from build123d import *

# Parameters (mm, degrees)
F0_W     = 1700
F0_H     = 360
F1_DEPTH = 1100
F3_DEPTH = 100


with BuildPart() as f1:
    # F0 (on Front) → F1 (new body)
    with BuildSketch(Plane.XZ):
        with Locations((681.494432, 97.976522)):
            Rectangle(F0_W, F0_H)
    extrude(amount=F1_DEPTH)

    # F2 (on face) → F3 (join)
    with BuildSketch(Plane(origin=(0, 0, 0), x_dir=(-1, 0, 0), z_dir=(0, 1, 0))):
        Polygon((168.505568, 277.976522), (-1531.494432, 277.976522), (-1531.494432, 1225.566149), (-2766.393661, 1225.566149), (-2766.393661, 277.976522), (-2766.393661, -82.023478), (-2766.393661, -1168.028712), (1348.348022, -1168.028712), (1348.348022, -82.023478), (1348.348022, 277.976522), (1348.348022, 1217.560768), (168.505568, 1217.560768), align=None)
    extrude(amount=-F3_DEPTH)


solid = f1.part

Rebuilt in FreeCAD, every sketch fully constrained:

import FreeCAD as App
import Part
import Sketcher
from FreeCAD import Vector
Q = App.Units.Quantity

doc = App.newDocument("Part")
body = doc.addObject("PartDesign::Body", "Body")

# Sketch on XZ plane
sketch1 = doc.addObject("Sketcher::SketchObject", "Sketch")
body.addObject(sketch1)
sketch1.AttachmentSupport = (doc.XZ_Plane, [""])
sketch1.MapMode = "FlatFace"
sketch1.addGeometry([
    Part.LineSegment(Vector(-169, 278, 0), Vector(-169, -82, 0)),
    Part.LineSegment(Vector(-169, -82, 0), Vector(1531, -82, 0)),
    Part.LineSegment(Vector(1531, -82, 0), Vector(1531, 278, 0)),
    Part.LineSegment(Vector(1531, 278, 0), Vector(-169, 278, 0)),
], False)
sketch1.addConstraint([
    Sketcher.Constraint("Coincident", 0, 2, 1, 1),
    Sketcher.Constraint("Coincident", 1, 2, 2, 1),
    Sketcher.Constraint("Coincident", 2, 2, 3, 1),
    Sketcher.Constraint("Coincident", 3, 2, 0, 1),
    Sketcher.Constraint("Vertical", 0),
    Sketcher.Constraint("Horizontal", 1),
    Sketcher.Constraint("Vertical", 2),
    Sketcher.Constraint("Horizontal", 3),
    Sketcher.Constraint("DistanceX", 1, 1, 1, 2, Q("1700 mm")),
    Sketcher.Constraint("DistanceY", 0, 2, 0, 1, Q("360 mm")),
    Sketcher.Constraint("DistanceX", 0, 2, -1, 1, Q("168.505568 mm")),
    Sketcher.Constraint("DistanceY", -1, 1, 2, 2, Q("277.976522 mm")),
])
pad1 = doc.addObject("PartDesign::Pad", "Pad")
body.addObject(pad1)
pad1.Profile = sketch1
pad1.Length = 1100

# Sketch on XZ plane
sketch2 = doc.addObject("Sketcher::SketchObject", "Sketch001")
body.addObject(sketch2)
sketch2.AttachmentSupport = (doc.XZ_Plane, [""])
sketch2.MapMode = "FlatFace"
sketch2.addGeometry([
    Part.LineSegment(Vector(-169, 278, 0), Vector(1531, 278, 0)),  # 0
    Part.LineSegment(Vector(1531, 278, 0), Vector(1531, 1226, 0)),  # 1
    Part.LineSegment(Vector(1531, 1226, 0), Vector(2766, 1226, 0)),  # 2
    Part.LineSegment(Vector(2766, 1226, 0), Vector(2766, -1168, 0)),  # 3
    Part.LineSegment(Vector(2766, -1168, 0), Vector(-1348, -1168, 0)),  # 4
    Part.LineSegment(Vector(-1348, -1168, 0), Vector(-1348, 1218, 0)),  # 5
    Part.LineSegment(Vector(-1348, 1218, 0), Vector(-169, 1218, 0)),  # 6
    Part.LineSegment(Vector(-169, 1218, 0), Vector(-169, 278, 0)),  # 7
], False)
sketch2.addConstraint([
    Sketcher.Constraint("Coincident", 0, 2, 1, 1),
    Sketcher.Constraint("Coincident", 1, 2, 2, 1),
    Sketcher.Constraint("Coincident", 2, 2, 3, 1),
    Sketcher.Constraint("Coincident", 3, 2, 4, 1),
    Sketcher.Constraint("Coincident", 4, 2, 5, 1),
    Sketcher.Constraint("Coincident", 5, 2, 6, 1),
    Sketcher.Constraint("Coincident", 6, 2, 7, 1),
    Sketcher.Constraint("Coincident", 7, 2, 0, 1),
    Sketcher.Constraint("Horizontal", 0),
    Sketcher.Constraint("Vertical", 1),
    Sketcher.Constraint("Horizontal", 2),
    Sketcher.Constraint("Vertical", 3),
    Sketcher.Constraint("Horizontal", 4),
    Sketcher.Constraint("Vertical", 5),
    Sketcher.Constraint("Horizontal", 6),
    Sketcher.Constraint("Vertical", 7),
    Sketcher.Constraint("DistanceX", 0, 1, 0, 2, Q("1700 mm")),
    Sketcher.Constraint("DistanceX", 2, 1, 2, 2, Q("1234.899229 mm")),
    Sketcher.Constraint("DistanceY", 3, 2, 3, 1, Q("2393.594861 mm")),
    Sketcher.Constraint("DistanceY", 5, 1, 5, 2, Q("2385.58948 mm")),
    Sketcher.Constraint("DistanceX", 4, 2, 4, 1, Q("4114.741683 mm")),
    Sketcher.Constraint("DistanceY", 1, 1, 1, 2, Q("947.589627 mm")),
    Sketcher.Constraint("DistanceX", -1, 1, 0, 2, Q("1531.494432 mm")),
    Sketcher.Constraint("DistanceY", -1, 1, 0, 2, Q("277.976522 mm")),
])
pad2 = doc.addObject("PartDesign::Pad", "Pad001")
body.addObject(pad2)
pad2.Profile = sketch2
pad2.Length = 100

doc.recompute()
